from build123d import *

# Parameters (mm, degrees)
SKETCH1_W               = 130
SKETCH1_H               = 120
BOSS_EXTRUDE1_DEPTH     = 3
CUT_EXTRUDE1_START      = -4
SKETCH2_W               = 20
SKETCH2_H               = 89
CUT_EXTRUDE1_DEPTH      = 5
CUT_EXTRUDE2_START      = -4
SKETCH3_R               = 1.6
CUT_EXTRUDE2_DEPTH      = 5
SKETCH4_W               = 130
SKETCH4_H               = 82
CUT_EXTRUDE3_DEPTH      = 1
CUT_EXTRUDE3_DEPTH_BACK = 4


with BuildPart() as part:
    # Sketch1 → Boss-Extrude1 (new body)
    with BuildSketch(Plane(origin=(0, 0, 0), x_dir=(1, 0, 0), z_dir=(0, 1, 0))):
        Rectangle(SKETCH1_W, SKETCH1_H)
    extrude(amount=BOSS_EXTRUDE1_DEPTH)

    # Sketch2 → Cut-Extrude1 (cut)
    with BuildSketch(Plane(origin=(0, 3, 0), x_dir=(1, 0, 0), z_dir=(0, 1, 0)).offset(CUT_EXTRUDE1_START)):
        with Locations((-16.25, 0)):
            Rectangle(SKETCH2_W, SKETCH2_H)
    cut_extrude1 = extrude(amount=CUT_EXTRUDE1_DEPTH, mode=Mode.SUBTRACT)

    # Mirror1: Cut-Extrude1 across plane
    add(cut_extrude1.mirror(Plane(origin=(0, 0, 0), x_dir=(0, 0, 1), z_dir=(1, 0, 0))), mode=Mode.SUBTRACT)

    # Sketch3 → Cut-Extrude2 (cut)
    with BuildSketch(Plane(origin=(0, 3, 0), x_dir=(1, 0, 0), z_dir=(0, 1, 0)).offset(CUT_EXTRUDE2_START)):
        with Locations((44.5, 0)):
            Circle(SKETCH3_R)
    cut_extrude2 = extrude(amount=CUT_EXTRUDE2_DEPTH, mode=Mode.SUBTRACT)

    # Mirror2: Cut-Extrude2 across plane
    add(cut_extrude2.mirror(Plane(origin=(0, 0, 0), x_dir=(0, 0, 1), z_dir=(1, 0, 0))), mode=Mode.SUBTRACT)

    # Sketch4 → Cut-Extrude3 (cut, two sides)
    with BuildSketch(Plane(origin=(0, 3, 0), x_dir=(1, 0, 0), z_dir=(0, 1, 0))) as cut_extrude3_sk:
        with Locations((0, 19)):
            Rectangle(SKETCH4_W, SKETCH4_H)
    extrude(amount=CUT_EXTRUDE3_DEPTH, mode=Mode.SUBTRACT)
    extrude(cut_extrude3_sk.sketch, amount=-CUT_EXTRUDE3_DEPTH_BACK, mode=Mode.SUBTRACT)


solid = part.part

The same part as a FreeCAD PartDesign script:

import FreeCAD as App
import Part
import Sketcher
Q = App.Units.Quantity

doc = App.newDocument("Part")
body = doc.addObject("PartDesign::Body", "Body")

# Sketch on XZ plane
sketch1 = body.newObject("Sketcher::SketchObject", "Sketch")
sketch1.AttachmentSupport = (doc.getObject("XZ_Plane"), [""])
sketch1.MapMode = "FlatFace"
sketch1.addGeometry(Part.LineSegment(App.Vector(-65, -60, 0), App.Vector(-65, 60, 0)), False)
sketch1.addGeometry(Part.LineSegment(App.Vector(-65, 60, 0), App.Vector(65, 60, 0)), False)
sketch1.addGeometry(Part.LineSegment(App.Vector(65, 60, 0), App.Vector(65, -60, 0)), False)
sketch1.addGeometry(Part.LineSegment(App.Vector(65, -60, 0), App.Vector(-65, -60, 0)), False)
sketch1.addConstraint(Sketcher.Constraint("Coincident", 0, 2, 1, 1))
sketch1.addConstraint(Sketcher.Constraint("Coincident", 1, 2, 2, 1))
sketch1.addConstraint(Sketcher.Constraint("Coincident", 2, 2, 3, 1))
sketch1.addConstraint(Sketcher.Constraint("Coincident", 3, 2, 0, 1))
sketch1.addConstraint(Sketcher.Constraint("Vertical", 0))
sketch1.addConstraint(Sketcher.Constraint("Horizontal", 1))
sketch1.addConstraint(Sketcher.Constraint("Vertical", 2))
sketch1.addConstraint(Sketcher.Constraint("Horizontal", 3))
sketch1.addConstraint(Sketcher.Constraint("Symmetric", 0, 2, 2, 2, -1, 1))
sketch1.addConstraint(Sketcher.Constraint("DistanceX", 1, 1, 1, 2, Q("130 mm")))
sketch1.addConstraint(Sketcher.Constraint("DistanceY", 0, 1, 0, 2, Q("120 mm")))
pad1 = body.newObject("PartDesign::Pad", "Pad")
pad1.Profile = sketch1
pad1.Length = 3
pad1.Reversed = True

# Sketch on XZ plane
sketch2 = body.newObject("Sketcher::SketchObject", "Sketch001")
sketch2.AttachmentSupport = (doc.getObject("XZ_Plane"), [""])
sketch2.MapMode = "FlatFace"
sketch2.AttachmentOffset = App.Placement(App.Vector(0, 0, 1), App.Rotation())
sketch2.addGeometry(Part.LineSegment(App.Vector(-26, -44, 0), App.Vector(-26, 44, 0)), False)
sketch2.addGeometry(Part.LineSegment(App.Vector(-26, 44, 0), App.Vector(-6, 44, 0)), False)
sketch2.addGeometry(Part.LineSegment(App.Vector(-6, 44, 0), App.Vector(-6, -44, 0)), False)
sketch2.addGeometry(Part.LineSegment(App.Vector(-6, -44, 0), App.Vector(-26, -44, 0)), False)
sketch2.addConstraint(Sketcher.Constraint("Coincident", 0, 2, 1, 1))
sketch2.addConstraint(Sketcher.Constraint("Coincident", 1, 2, 2, 1))
sketch2.addConstraint(Sketcher.Constraint("Coincident", 2, 2, 3, 1))
sketch2.addConstraint(Sketcher.Constraint("Coincident", 3, 2, 0, 1))
sketch2.addConstraint(Sketcher.Constraint("Vertical", 0))
sketch2.addConstraint(Sketcher.Constraint("Horizontal", 1))
sketch2.addConstraint(Sketcher.Constraint("Vertical", 2))
sketch2.addConstraint(Sketcher.Constraint("Horizontal", 3))
sketch2.addConstraint(Sketcher.Constraint("DistanceX", 1, 1, 1, 2, Q("20 mm")))
sketch2.addConstraint(Sketcher.Constraint("DistanceY", 0, 1, 0, 2, Q("89 mm")))
sketch2.addConstraint(Sketcher.Constraint("DistanceY", -1, 1, 0, 2, Q("44.5 mm")))
sketch2.addConstraint(Sketcher.Constraint("DistanceX", 0, 2, -1, 1, Q("26.25 mm")))
pocket1 = body.newObject("PartDesign::Pocket", "Pocket")
pocket1.Profile = sketch2
pocket1.Length = 5
doc.recompute()

mirrored = body.newObject("PartDesign::Mirrored", "Mirrored")
mirrored.Originals = [pocket1]
mirrored.MirrorPlane = (doc.getObject("YZ_Plane"), [""])
body.Tip = mirrored

# Sketch on XZ plane
sketch3 = body.newObject("Sketcher::SketchObject", "Sketch002")
sketch3.AttachmentSupport = (doc.getObject("XZ_Plane"), [""])
sketch3.MapMode = "FlatFace"
sketch3.AttachmentOffset = App.Placement(App.Vector(0, 0, 1), App.Rotation())
sketch3.addGeometry(Part.Circle(App.Vector(44.5, 0, 0), App.Vector(0, 0, 1), 1.6), False)
sketch3.addConstraint(Sketcher.Constraint("PointOnObject", 0, 3, -1))
sketch3.addConstraint(Sketcher.Constraint("Diameter", 0, Q("3.2 mm")))
sketch3.addConstraint(Sketcher.Constraint("DistanceX", -1, 1, 0, 3, Q("44.5 mm")))
pocket2 = body.newObject("PartDesign::Pocket", "Pocket001")
pocket2.Profile = sketch3
pocket2.Length = 5
doc.recompute()

mirrored2 = body.newObject("PartDesign::Mirrored", "Mirrored001")
mirrored2.Originals = [pocket2]
mirrored2.MirrorPlane = (doc.getObject("YZ_Plane"), [""])
body.Tip = mirrored2

# Sketch on XZ plane
sketch4 = body.newObject("Sketcher::SketchObject", "Sketch003")
sketch4.AttachmentSupport = (doc.getObject("XZ_Plane"), [""])
sketch4.MapMode = "FlatFace"
sketch4.AttachmentOffset = App.Placement(App.Vector(0, 0, -3), App.Rotation())
sketch4.addGeometry(Part.LineSegment(App.Vector(-65, -60, 0), App.Vector(-65, 22, 0)), False)
sketch4.addGeometry(Part.LineSegment(App.Vector(-65, 22, 0), App.Vector(65, 22, 0)), False)
sketch4.addGeometry(Part.LineSegment(App.Vector(65, 22, 0), App.Vector(65, -60, 0)), False)
sketch4.addGeometry(Part.LineSegment(App.Vector(65, -60, 0), App.Vector(-65, -60, 0)), False)
sketch4.addConstraint(Sketcher.Constraint("Coincident", 0, 2, 1, 1))
sketch4.addConstraint(Sketcher.Constraint("Coincident", 1, 2, 2, 1))
sketch4.addConstraint(Sketcher.Constraint("Coincident", 2, 2, 3, 1))
sketch4.addConstraint(Sketcher.Constraint("Coincident", 3, 2, 0, 1))
sketch4.addConstraint(Sketcher.Constraint("Vertical", 0))
sketch4.addConstraint(Sketcher.Constraint("Horizontal", 1))
sketch4.addConstraint(Sketcher.Constraint("Vertical", 2))
sketch4.addConstraint(Sketcher.Constraint("Horizontal", 3))
sketch4.addConstraint(Sketcher.Constraint("DistanceX", 1, 1, 1, 2, Q("130 mm")))
sketch4.addConstraint(Sketcher.Constraint("DistanceY", 0, 1, 0, 2, Q("82 mm")))
sketch4.addConstraint(Sketcher.Constraint("DistanceX", 0, 2, -1, 1, Q("65 mm")))
sketch4.addConstraint(Sketcher.Constraint("DistanceY", -1, 1, 0, 2, Q("22 mm")))
pocket3 = body.newObject("PartDesign::Pocket", "Pocket002")
pocket3.Profile = sketch4
pocket3.Type = "ThroughAll"
pocket3.Midplane = True

doc.recompute()
